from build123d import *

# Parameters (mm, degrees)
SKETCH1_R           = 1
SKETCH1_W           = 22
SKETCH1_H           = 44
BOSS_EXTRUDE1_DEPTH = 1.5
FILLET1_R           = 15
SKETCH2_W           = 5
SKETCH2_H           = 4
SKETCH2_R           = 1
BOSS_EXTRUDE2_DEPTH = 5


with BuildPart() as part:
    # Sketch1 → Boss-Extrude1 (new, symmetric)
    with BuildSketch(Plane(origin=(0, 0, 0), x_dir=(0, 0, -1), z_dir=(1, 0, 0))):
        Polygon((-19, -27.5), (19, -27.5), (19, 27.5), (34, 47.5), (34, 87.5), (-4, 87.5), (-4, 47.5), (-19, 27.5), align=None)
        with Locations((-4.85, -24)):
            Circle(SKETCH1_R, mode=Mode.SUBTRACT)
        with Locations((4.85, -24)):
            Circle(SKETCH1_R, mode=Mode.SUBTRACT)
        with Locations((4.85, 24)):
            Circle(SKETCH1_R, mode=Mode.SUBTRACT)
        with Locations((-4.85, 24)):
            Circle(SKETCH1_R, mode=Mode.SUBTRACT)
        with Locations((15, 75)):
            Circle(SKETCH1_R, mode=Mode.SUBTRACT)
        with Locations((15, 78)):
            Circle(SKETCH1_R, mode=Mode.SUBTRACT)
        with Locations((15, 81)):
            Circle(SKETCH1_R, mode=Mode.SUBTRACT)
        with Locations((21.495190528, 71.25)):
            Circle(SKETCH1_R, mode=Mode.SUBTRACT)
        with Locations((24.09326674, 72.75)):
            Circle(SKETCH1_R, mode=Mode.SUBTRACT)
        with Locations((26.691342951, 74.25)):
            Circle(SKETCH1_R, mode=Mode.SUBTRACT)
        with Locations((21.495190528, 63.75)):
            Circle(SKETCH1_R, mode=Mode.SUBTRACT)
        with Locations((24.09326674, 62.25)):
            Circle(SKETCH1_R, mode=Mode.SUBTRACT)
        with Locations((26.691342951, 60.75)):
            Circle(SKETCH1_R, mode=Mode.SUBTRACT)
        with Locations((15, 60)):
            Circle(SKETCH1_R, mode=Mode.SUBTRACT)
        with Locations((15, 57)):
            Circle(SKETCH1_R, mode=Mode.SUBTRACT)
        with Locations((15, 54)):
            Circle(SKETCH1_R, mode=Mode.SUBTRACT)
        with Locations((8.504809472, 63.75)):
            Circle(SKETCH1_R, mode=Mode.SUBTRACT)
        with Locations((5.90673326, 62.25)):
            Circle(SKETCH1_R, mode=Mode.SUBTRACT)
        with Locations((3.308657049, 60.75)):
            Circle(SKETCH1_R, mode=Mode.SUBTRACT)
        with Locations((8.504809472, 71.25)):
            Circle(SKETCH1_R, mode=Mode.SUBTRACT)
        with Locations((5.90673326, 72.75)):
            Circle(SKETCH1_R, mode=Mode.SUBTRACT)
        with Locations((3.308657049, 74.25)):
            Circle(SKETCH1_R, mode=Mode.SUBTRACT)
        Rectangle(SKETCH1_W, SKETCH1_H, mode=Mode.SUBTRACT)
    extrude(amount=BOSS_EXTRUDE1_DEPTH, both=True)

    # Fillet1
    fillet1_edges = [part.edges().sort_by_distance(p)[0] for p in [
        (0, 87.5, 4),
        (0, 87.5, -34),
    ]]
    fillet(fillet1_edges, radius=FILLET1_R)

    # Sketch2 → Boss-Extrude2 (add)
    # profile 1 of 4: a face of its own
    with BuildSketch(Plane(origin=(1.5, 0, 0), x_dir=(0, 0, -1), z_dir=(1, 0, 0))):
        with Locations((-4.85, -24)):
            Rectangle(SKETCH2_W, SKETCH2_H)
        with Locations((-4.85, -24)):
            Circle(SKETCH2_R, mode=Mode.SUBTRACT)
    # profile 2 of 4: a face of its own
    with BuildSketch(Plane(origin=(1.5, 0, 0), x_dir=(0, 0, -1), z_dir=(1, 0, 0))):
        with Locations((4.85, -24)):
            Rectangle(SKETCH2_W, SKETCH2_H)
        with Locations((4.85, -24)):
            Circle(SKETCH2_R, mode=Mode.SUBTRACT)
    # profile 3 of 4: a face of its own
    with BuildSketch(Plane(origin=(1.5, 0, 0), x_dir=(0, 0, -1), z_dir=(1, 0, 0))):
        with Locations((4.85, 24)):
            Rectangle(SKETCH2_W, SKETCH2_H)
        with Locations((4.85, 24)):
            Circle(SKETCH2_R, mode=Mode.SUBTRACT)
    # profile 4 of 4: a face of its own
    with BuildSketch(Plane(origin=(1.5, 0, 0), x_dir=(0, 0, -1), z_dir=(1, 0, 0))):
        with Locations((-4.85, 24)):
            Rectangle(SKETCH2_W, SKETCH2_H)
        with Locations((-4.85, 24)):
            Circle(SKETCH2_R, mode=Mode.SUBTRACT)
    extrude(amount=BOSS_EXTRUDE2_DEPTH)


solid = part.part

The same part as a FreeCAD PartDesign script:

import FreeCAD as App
import Part
import Sketcher

V = App.Vector
Q = App.Units.Quantity


def edges_at(feature, points):
    """Names of the edges that pass closest to the given points."""
    edges = feature.Shape.Edges
    near = lambda p: min(range(len(edges)), key=lambda i: edges[i].distToShape(Part.Vertex(*p))[0])
    return sorted({f"Edge{near(p) + 1}" for p in points})


def add_polygon(sketch, points):
    """Adds a closed chain of lines whose ends are joined by coincident constraints."""
    first, n = sketch.GeometryCount, len(points)
    for a, b in zip(points, points[1:] + points[:1]):
        sketch.addGeometry(Part.LineSegment(App.Vector(*a, 0), App.Vector(*b, 0)), False)
    for i in range(n):
        sketch.addConstraint(Sketcher.Constraint("Coincident", first + i, 2, first + (i + 1) % n, 1))

doc = App.newDocument("Part")
body = doc.addObject("PartDesign::Body", "Body")

# Sketch on YZ plane
sketch1 = body.newObject("Sketcher::SketchObject", "Sketch")
sketch1.AttachmentSupport = (doc.getObject("YZ_Plane"), [""])
sketch1.MapMode = "FlatFace"
add_polygon(sketch1, [(-27.5, 19), (-27.5, -19), (27.5, -19), (47.5, -34), (87.5, -34), (87.5, 4), (47.5, 4), (27.5, 19)])  # lines 0-7
sketch1.addGeometry(Part.Circle(V(-24, 4.8, 0), V(0, 0, 1), 1), False)  # 8
sketch1.addGeometry(Part.Circle(V(-24, -4.8, 0), V(0, 0, 1), 1), False)  # 9
add_polygon(sketch1, [(-22, -11), (-22, 11), (22, 11), (22, -11)])  # lines 10-13
sketch1.addGeometry(Part.Circle(V(24, 4.8, 0), V(0, 0, 1), 1), False)  # 14
sketch1.addGeometry(Part.Circle(V(24, -4.8, 0), V(0, 0, 1), 1), False)  # 15
sketch1.addGeometry(Part.Circle(V(60.8, -3.3, 0), V(0, 0, 1), 1), False)  # 16
sketch1.addGeometry(Part.Circle(V(62.2, -5.9, 0), V(0, 0, 1), 1), False)  # 17
sketch1.addGeometry(Part.Circle(V(74.2, -3.3, 0), V(0, 0, 1), 1), False)  # 18
sketch1.addGeometry(Part.Circle(V(72.8, -5.9, 0), V(0, 0, 1), 1), False)  # 19
sketch1.addGeometry(Part.Circle(V(54, -15, 0), V(0, 0, 1), 1), False)  # 20
sketch1.addGeometry(Part.Circle(V(63.8, -8.5, 0), V(0, 0, 1), 1), False)  # 21
sketch1.addGeometry(Part.Circle(V(57, -15, 0), V(0, 0, 1), 1), False)  # 22
sketch1.addGeometry(Part.Circle(V(60, -15, 0), V(0, 0, 1), 1), False)  # 23
sketch1.addGeometry(Part.Circle(V(71.2, -8.5, 0), V(0, 0, 1), 1), False)  # 24
sketch1.addGeometry(Part.Circle(V(75, -15, 0), V(0, 0, 1), 1), False)  # 25
sketch1.addGeometry(Part.Circle(V(78, -15, 0), V(0, 0, 1), 1), False)  # 26
sketch1.addGeometry(Part.Circle(V(81, -15, 0), V(0, 0, 1), 1), False)  # 27
sketch1.addGeometry(Part.Circle(V(63.8, -21.5, 0), V(0, 0, 1), 1), False)  # 28
sketch1.addGeometry(Part.Circle(V(60.8, -26.7, 0), V(0, 0, 1), 1), False)  # 29
sketch1.addGeometry(Part.Circle(V(62.2, -24.1, 0), V(0, 0, 1), 1), False)  # 30
sketch1.addGeometry(Part.Circle(V(71.2, -21.5, 0), V(0, 0, 1), 1), False)  # 31
sketch1.addGeometry(Part.Circle(V(72.8, -24.1, 0), V(0, 0, 1), 1), False)  # 32
sketch1.addGeometry(Part.Circle(V(74.2, -26.7, 0), V(0, 0, 1), 1), False)  # 33
sketch1.addConstraint([
    Sketcher.Constraint("Vertical", 0),
    Sketcher.Constraint("Horizontal", 1),
    Sketcher.Constraint("Horizontal", 3),
    Sketcher.Constraint("Vertical", 4),
    Sketcher.Constraint("Horizontal", 5),
    Sketcher.Constraint("Horizontal", 7),
    Sketcher.Constraint("Vertical", 10),
    Sketcher.Constraint("Horizontal", 11),
    Sketcher.Constraint("Vertical", 12),
    Sketcher.Constraint("Horizontal", 13),
    Sketcher.Constraint("Equal", 8, 9),
    Sketcher.Constraint("Equal", 9, 14),
    Sketcher.Constraint("Equal", 14, 15),
    Sketcher.Constraint("Equal", 15, 16),
    Sketcher.Constraint("Equal", 16, 17),
    Sketcher.Constraint("Equal", 17, 18),
    Sketcher.Constraint("Equal", 18, 19),
    Sketcher.Constraint("Equal", 19, 20),
    Sketcher.Constraint("Equal", 20, 21),
    Sketcher.Constraint("Equal", 21, 22),
    Sketcher.Constraint("Equal", 22, 23),
    Sketcher.Constraint("Equal", 23, 24),
    Sketcher.Constraint("Equal", 24, 25),
    Sketcher.Constraint("Equal", 25, 26),
    Sketcher.Constraint("Equal", 26, 27),
    Sketcher.Constraint("Equal", 27, 28),
    Sketcher.Constraint("Equal", 28, 29),
    Sketcher.Constraint("Equal", 29, 30),
    Sketcher.Constraint("Equal", 30, 31),
    Sketcher.Constraint("Equal", 31, 32),
    Sketcher.Constraint("Equal", 32, 33),
    Sketcher.Constraint("Symmetric", 9, 3, 14, 3, -1, 1),
    Sketcher.Constraint("Symmetric", 8, 3, 15, 3, -1, 1),
    Sketcher.Constraint("Symmetric", 0, 2, 6, 2, -1, 1),
    Sketcher.Constraint("Symmetric", 10, 2, 12, 2, -1, 1),
    Sketcher.Constraint("Symmetric", 8, 3, 14, 3, -2),
    Sketcher.Constraint("Parallel", 2, 6),
    Sketcher.Constraint("Horizontal", 16, 3, 18, 3),
    Sketcher.Constraint("Horizontal", 17, 3, 19, 3),
    Sketcher.Constraint("Horizontal", 20, 3, 22, 3),
    Sketcher.Constraint("Horizontal", 22, 3, 23, 3),
    Sketcher.Constraint("Horizontal", 21, 3, 24, 3),
    Sketcher.Constraint("Horizontal", 23, 3, 25, 3),
    Sketcher.Constraint("Horizontal", 25, 3, 26, 3),
    Sketcher.Constraint("Horizontal", 26, 3, 27, 3),
    Sketcher.Constraint("Horizontal", 28, 3, 31, 3),
    Sketcher.Constraint("Horizontal", 30, 3, 32, 3),
    Sketcher.Constraint("Horizontal", 29, 3, 33, 3),
    Sketcher.Constraint("Vertical", 21, 3, 28, 3),
    Sketcher.Constraint("Vertical", 16, 3, 29, 3),
    Sketcher.Constraint("Vertical", 17, 3, 30, 3),
    Sketcher.Constraint("Vertical", 24, 3, 31, 3),
    Sketcher.Constraint("Vertical", 19, 3, 32, 3),
    Sketcher.Constraint("Vertical", 18, 3, 33, 3),
    Sketcher.Constraint("Vertical", 2, 2, 5, 2),
    Sketcher.Constraint("Vertical", 1, 2, 6, 2),
    Sketcher.Constraint("Diameter", 8, Q("2 mm")),
    Sketcher.Constraint("DistanceX", 1, 1, 1, 2, Q("55 mm")),
    Sketcher.Constraint("DistanceX", 3, 1, 3, 2, Q("40 mm")),
    Sketcher.Constraint("DistanceX", 11, 1, 11, 2, Q("44 mm")),
    Sketcher.Constraint("DistanceY", 0, 2, 0, 1, Q("38 mm")),
    Sketcher.Constraint("DistanceY", 10, 1, 10, 2, Q("22 mm")),
    Sketcher.Constraint("Distance", 2, Q("25 mm")),
    Sketcher.Constraint("DistanceX", 8, 3, -1, 1, Q("24 mm")),
    Sketcher.Constraint("DistanceX", -1, 1, 20, 3, Q("54 mm")),
    Sketcher.Constraint("DistanceY", 20, 3, -1, 1, Q("15 mm")),
    Sketcher.Constraint("DistanceX", -1, 1, 22, 3, Q("57 mm")),
    Sketcher.Constraint("DistanceX", -1, 1, 23, 3, Q("60 mm")),
    Sketcher.Constraint("DistanceX", -1, 1, 25, 3, Q("75 mm")),
    Sketcher.Constraint("DistanceX", -1, 1, 26, 3, Q("78 mm")),
    Sketcher.Constraint("DistanceX", -1, 1, 27, 3, Q("81 mm")),
    Sketcher.Constraint("DistanceY", 2, 2, -1, 1, Q("34 mm")),
    Sketcher.Constraint("DistanceX", 17, 3, 18, 3, Q("12 mm")),
    Sketcher.Constraint("DistanceX", 16, 3, 19, 3, Q("12 mm")),
    Sketcher.Constraint("DistanceX", 16, 3, 21, 3, Q("3 mm")),
    Sketcher.Constraint("DistanceX", 24, 3, 18, 3, Q("3 mm")),
    Sketcher.Constraint("DistanceY", 9, 3, 8, 3, Q("9.7 mm")),
    Sketcher.Constraint("DistanceX", 16, 3, 17, 3, Q("1.5 mm")),
    Sketcher.Constraint("DistanceX", -1, 1, 16, 3, Q("60.75 mm")),
    Sketcher.Constraint("DistanceY", 21, 3, -1, 1, Q("8.504809 mm")),
    Sketcher.Constraint("DistanceY", 28, 3, -1, 1, Q("21.495191 mm")),
    Sketcher.Constraint("DistanceY", 16, 3, -1, 1, Q("3.308657 mm")),
    Sketcher.Constraint("DistanceY", 17, 3, -1, 1, Q("5.906733 mm")),
    Sketcher.Constraint("DistanceY", 29, 3, -1, 1, Q("26.691343 mm")),
    Sketcher.Constraint("DistanceY", 30, 3, -1, 1, Q("24.093267 mm")),
])
pad1 = body.newObject("PartDesign::Pad", "Pad")
pad1.Profile = sketch1
pad1.Length = 3
pad1.Midplane = True
doc.recompute()

fillet = body.newObject("PartDesign::Fillet", "Fillet")
fillet.Base = (pad1, edges_at(pad1, [(0, 87.5, 4), (0, 87.5, -34)]))
fillet.Radius = 15

# Sketch on YZ plane
sketch2 = body.newObject("Sketcher::SketchObject", "Sketch001")
sketch2.AttachmentSupport = (doc.getObject("YZ_Plane"), [""])
sketch2.MapMode = "FlatFace"
sketch2.AttachmentOffset = App.Placement(V(0, 0, 1.5), App.Rotation())
add_polygon(sketch2, [(-22, 7.3), (-26, 7.3), (-26, 2.4), (-22, 2.4)])  # lines 0-3
sketch2.addGeometry(Part.Circle(V(-24, 4.8, 0), V(0, 0, 1), 1), False)  # 4
add_polygon(sketch2, [(-22, -2.4), (-26, -2.4), (-26, -7.3), (-22, -7.3)])  # lines 5-8
sketch2.addGeometry(Part.Circle(V(-24, -4.8, 0), V(0, 0, 1), 1), False)  # 9
add_polygon(sketch2, [(26, -2.4), (22, -2.4), (22, -7.3), (26, -7.3)])  # lines 10-13
sketch2.addGeometry(Part.Circle(V(24, -4.8, 0), V(0, 0, 1), 1), False)  # 14
add_polygon(sketch2, [(26, 7.3), (22, 7.3), (22, 2.4), (26, 2.4)])  # lines 15-18
sketch2.addGeometry(Part.Circle(V(24, 4.8, 0), V(0, 0, 1), 1), False)  # 19
sketch2.addConstraint([
    Sketcher.Constraint("Horizontal", 0),
    Sketcher.Constraint("Vertical", 1),
    Sketcher.Constraint("Horizontal", 2),
    Sketcher.Constraint("Vertical", 3),
    Sketcher.Constraint("Horizontal", 5),
    Sketcher.Constraint("Vertical", 6),
    Sketcher.Constraint("Horizontal", 7),
    Sketcher.Constraint("Vertical", 8),
    Sketcher.Constraint("Horizontal", 10),
    Sketcher.Constraint("Vertical", 11),
    Sketcher.Constraint("Horizontal", 12),
    Sketcher.Constraint("Vertical", 13),
    Sketcher.Constraint("Horizontal", 15),
    Sketcher.Constraint("Vertical", 16),
    Sketcher.Constraint("Horizontal", 17),
    Sketcher.Constraint("Vertical", 18),
    Sketcher.Constraint("Equal", 4, 9),
    Sketcher.Constraint("Equal", 9, 14),
    Sketcher.Constraint("Equal", 14, 19),
    Sketcher.Constraint("Symmetric", 4, 3, 14, 3, -1, 1),
    Sketcher.Constraint("Symmetric", 9, 3, 19, 3, -1, 1),
    Sketcher.Constraint("Symmetric", 2, 2, 10, 2, -1, 1),
    Sketcher.Constraint("Symmetric", 0, 2, 12, 2, -1, 1),
    Sketcher.Constraint("Symmetric", 7, 2, 15, 2, -1, 1),
    Sketcher.Constraint("Symmetric", 5, 2, 17, 2, -1, 1),
    Sketcher.Constraint("Symmetric", 9, 3, 14, 3, -2),
    Sketcher.Constraint("Symmetric", 8, 2, 10, 2, -2),
    Sketcher.Constraint("Symmetric", 6, 2, 12, 2, -2),
    Sketcher.Constraint("Diameter", 4, Q("2 mm")),
    Sketcher.Constraint("DistanceX", 0, 2, 0, 1, Q("4 mm")),
    Sketcher.Constraint("DistanceY", 1, 2, 1, 1, Q("5 mm")),
    Sketcher.Constraint("DistanceX", 4, 3, -1, 1, Q("24 mm")),
    Sketcher.Constraint("DistanceX", 0, 2, -1, 1, Q("26 mm")),
    Sketcher.Constraint("DistanceY", 9, 3, 4, 3, Q("9.7 mm")),
    Sketcher.Constraint("DistanceY", 4, 3, 0, 2, Q("2.5 mm")),
])
pad2 = body.newObject("PartDesign::Pad", "Pad001")
pad2.Profile = sketch2
pad2.Length = 5

doc.recompute()
